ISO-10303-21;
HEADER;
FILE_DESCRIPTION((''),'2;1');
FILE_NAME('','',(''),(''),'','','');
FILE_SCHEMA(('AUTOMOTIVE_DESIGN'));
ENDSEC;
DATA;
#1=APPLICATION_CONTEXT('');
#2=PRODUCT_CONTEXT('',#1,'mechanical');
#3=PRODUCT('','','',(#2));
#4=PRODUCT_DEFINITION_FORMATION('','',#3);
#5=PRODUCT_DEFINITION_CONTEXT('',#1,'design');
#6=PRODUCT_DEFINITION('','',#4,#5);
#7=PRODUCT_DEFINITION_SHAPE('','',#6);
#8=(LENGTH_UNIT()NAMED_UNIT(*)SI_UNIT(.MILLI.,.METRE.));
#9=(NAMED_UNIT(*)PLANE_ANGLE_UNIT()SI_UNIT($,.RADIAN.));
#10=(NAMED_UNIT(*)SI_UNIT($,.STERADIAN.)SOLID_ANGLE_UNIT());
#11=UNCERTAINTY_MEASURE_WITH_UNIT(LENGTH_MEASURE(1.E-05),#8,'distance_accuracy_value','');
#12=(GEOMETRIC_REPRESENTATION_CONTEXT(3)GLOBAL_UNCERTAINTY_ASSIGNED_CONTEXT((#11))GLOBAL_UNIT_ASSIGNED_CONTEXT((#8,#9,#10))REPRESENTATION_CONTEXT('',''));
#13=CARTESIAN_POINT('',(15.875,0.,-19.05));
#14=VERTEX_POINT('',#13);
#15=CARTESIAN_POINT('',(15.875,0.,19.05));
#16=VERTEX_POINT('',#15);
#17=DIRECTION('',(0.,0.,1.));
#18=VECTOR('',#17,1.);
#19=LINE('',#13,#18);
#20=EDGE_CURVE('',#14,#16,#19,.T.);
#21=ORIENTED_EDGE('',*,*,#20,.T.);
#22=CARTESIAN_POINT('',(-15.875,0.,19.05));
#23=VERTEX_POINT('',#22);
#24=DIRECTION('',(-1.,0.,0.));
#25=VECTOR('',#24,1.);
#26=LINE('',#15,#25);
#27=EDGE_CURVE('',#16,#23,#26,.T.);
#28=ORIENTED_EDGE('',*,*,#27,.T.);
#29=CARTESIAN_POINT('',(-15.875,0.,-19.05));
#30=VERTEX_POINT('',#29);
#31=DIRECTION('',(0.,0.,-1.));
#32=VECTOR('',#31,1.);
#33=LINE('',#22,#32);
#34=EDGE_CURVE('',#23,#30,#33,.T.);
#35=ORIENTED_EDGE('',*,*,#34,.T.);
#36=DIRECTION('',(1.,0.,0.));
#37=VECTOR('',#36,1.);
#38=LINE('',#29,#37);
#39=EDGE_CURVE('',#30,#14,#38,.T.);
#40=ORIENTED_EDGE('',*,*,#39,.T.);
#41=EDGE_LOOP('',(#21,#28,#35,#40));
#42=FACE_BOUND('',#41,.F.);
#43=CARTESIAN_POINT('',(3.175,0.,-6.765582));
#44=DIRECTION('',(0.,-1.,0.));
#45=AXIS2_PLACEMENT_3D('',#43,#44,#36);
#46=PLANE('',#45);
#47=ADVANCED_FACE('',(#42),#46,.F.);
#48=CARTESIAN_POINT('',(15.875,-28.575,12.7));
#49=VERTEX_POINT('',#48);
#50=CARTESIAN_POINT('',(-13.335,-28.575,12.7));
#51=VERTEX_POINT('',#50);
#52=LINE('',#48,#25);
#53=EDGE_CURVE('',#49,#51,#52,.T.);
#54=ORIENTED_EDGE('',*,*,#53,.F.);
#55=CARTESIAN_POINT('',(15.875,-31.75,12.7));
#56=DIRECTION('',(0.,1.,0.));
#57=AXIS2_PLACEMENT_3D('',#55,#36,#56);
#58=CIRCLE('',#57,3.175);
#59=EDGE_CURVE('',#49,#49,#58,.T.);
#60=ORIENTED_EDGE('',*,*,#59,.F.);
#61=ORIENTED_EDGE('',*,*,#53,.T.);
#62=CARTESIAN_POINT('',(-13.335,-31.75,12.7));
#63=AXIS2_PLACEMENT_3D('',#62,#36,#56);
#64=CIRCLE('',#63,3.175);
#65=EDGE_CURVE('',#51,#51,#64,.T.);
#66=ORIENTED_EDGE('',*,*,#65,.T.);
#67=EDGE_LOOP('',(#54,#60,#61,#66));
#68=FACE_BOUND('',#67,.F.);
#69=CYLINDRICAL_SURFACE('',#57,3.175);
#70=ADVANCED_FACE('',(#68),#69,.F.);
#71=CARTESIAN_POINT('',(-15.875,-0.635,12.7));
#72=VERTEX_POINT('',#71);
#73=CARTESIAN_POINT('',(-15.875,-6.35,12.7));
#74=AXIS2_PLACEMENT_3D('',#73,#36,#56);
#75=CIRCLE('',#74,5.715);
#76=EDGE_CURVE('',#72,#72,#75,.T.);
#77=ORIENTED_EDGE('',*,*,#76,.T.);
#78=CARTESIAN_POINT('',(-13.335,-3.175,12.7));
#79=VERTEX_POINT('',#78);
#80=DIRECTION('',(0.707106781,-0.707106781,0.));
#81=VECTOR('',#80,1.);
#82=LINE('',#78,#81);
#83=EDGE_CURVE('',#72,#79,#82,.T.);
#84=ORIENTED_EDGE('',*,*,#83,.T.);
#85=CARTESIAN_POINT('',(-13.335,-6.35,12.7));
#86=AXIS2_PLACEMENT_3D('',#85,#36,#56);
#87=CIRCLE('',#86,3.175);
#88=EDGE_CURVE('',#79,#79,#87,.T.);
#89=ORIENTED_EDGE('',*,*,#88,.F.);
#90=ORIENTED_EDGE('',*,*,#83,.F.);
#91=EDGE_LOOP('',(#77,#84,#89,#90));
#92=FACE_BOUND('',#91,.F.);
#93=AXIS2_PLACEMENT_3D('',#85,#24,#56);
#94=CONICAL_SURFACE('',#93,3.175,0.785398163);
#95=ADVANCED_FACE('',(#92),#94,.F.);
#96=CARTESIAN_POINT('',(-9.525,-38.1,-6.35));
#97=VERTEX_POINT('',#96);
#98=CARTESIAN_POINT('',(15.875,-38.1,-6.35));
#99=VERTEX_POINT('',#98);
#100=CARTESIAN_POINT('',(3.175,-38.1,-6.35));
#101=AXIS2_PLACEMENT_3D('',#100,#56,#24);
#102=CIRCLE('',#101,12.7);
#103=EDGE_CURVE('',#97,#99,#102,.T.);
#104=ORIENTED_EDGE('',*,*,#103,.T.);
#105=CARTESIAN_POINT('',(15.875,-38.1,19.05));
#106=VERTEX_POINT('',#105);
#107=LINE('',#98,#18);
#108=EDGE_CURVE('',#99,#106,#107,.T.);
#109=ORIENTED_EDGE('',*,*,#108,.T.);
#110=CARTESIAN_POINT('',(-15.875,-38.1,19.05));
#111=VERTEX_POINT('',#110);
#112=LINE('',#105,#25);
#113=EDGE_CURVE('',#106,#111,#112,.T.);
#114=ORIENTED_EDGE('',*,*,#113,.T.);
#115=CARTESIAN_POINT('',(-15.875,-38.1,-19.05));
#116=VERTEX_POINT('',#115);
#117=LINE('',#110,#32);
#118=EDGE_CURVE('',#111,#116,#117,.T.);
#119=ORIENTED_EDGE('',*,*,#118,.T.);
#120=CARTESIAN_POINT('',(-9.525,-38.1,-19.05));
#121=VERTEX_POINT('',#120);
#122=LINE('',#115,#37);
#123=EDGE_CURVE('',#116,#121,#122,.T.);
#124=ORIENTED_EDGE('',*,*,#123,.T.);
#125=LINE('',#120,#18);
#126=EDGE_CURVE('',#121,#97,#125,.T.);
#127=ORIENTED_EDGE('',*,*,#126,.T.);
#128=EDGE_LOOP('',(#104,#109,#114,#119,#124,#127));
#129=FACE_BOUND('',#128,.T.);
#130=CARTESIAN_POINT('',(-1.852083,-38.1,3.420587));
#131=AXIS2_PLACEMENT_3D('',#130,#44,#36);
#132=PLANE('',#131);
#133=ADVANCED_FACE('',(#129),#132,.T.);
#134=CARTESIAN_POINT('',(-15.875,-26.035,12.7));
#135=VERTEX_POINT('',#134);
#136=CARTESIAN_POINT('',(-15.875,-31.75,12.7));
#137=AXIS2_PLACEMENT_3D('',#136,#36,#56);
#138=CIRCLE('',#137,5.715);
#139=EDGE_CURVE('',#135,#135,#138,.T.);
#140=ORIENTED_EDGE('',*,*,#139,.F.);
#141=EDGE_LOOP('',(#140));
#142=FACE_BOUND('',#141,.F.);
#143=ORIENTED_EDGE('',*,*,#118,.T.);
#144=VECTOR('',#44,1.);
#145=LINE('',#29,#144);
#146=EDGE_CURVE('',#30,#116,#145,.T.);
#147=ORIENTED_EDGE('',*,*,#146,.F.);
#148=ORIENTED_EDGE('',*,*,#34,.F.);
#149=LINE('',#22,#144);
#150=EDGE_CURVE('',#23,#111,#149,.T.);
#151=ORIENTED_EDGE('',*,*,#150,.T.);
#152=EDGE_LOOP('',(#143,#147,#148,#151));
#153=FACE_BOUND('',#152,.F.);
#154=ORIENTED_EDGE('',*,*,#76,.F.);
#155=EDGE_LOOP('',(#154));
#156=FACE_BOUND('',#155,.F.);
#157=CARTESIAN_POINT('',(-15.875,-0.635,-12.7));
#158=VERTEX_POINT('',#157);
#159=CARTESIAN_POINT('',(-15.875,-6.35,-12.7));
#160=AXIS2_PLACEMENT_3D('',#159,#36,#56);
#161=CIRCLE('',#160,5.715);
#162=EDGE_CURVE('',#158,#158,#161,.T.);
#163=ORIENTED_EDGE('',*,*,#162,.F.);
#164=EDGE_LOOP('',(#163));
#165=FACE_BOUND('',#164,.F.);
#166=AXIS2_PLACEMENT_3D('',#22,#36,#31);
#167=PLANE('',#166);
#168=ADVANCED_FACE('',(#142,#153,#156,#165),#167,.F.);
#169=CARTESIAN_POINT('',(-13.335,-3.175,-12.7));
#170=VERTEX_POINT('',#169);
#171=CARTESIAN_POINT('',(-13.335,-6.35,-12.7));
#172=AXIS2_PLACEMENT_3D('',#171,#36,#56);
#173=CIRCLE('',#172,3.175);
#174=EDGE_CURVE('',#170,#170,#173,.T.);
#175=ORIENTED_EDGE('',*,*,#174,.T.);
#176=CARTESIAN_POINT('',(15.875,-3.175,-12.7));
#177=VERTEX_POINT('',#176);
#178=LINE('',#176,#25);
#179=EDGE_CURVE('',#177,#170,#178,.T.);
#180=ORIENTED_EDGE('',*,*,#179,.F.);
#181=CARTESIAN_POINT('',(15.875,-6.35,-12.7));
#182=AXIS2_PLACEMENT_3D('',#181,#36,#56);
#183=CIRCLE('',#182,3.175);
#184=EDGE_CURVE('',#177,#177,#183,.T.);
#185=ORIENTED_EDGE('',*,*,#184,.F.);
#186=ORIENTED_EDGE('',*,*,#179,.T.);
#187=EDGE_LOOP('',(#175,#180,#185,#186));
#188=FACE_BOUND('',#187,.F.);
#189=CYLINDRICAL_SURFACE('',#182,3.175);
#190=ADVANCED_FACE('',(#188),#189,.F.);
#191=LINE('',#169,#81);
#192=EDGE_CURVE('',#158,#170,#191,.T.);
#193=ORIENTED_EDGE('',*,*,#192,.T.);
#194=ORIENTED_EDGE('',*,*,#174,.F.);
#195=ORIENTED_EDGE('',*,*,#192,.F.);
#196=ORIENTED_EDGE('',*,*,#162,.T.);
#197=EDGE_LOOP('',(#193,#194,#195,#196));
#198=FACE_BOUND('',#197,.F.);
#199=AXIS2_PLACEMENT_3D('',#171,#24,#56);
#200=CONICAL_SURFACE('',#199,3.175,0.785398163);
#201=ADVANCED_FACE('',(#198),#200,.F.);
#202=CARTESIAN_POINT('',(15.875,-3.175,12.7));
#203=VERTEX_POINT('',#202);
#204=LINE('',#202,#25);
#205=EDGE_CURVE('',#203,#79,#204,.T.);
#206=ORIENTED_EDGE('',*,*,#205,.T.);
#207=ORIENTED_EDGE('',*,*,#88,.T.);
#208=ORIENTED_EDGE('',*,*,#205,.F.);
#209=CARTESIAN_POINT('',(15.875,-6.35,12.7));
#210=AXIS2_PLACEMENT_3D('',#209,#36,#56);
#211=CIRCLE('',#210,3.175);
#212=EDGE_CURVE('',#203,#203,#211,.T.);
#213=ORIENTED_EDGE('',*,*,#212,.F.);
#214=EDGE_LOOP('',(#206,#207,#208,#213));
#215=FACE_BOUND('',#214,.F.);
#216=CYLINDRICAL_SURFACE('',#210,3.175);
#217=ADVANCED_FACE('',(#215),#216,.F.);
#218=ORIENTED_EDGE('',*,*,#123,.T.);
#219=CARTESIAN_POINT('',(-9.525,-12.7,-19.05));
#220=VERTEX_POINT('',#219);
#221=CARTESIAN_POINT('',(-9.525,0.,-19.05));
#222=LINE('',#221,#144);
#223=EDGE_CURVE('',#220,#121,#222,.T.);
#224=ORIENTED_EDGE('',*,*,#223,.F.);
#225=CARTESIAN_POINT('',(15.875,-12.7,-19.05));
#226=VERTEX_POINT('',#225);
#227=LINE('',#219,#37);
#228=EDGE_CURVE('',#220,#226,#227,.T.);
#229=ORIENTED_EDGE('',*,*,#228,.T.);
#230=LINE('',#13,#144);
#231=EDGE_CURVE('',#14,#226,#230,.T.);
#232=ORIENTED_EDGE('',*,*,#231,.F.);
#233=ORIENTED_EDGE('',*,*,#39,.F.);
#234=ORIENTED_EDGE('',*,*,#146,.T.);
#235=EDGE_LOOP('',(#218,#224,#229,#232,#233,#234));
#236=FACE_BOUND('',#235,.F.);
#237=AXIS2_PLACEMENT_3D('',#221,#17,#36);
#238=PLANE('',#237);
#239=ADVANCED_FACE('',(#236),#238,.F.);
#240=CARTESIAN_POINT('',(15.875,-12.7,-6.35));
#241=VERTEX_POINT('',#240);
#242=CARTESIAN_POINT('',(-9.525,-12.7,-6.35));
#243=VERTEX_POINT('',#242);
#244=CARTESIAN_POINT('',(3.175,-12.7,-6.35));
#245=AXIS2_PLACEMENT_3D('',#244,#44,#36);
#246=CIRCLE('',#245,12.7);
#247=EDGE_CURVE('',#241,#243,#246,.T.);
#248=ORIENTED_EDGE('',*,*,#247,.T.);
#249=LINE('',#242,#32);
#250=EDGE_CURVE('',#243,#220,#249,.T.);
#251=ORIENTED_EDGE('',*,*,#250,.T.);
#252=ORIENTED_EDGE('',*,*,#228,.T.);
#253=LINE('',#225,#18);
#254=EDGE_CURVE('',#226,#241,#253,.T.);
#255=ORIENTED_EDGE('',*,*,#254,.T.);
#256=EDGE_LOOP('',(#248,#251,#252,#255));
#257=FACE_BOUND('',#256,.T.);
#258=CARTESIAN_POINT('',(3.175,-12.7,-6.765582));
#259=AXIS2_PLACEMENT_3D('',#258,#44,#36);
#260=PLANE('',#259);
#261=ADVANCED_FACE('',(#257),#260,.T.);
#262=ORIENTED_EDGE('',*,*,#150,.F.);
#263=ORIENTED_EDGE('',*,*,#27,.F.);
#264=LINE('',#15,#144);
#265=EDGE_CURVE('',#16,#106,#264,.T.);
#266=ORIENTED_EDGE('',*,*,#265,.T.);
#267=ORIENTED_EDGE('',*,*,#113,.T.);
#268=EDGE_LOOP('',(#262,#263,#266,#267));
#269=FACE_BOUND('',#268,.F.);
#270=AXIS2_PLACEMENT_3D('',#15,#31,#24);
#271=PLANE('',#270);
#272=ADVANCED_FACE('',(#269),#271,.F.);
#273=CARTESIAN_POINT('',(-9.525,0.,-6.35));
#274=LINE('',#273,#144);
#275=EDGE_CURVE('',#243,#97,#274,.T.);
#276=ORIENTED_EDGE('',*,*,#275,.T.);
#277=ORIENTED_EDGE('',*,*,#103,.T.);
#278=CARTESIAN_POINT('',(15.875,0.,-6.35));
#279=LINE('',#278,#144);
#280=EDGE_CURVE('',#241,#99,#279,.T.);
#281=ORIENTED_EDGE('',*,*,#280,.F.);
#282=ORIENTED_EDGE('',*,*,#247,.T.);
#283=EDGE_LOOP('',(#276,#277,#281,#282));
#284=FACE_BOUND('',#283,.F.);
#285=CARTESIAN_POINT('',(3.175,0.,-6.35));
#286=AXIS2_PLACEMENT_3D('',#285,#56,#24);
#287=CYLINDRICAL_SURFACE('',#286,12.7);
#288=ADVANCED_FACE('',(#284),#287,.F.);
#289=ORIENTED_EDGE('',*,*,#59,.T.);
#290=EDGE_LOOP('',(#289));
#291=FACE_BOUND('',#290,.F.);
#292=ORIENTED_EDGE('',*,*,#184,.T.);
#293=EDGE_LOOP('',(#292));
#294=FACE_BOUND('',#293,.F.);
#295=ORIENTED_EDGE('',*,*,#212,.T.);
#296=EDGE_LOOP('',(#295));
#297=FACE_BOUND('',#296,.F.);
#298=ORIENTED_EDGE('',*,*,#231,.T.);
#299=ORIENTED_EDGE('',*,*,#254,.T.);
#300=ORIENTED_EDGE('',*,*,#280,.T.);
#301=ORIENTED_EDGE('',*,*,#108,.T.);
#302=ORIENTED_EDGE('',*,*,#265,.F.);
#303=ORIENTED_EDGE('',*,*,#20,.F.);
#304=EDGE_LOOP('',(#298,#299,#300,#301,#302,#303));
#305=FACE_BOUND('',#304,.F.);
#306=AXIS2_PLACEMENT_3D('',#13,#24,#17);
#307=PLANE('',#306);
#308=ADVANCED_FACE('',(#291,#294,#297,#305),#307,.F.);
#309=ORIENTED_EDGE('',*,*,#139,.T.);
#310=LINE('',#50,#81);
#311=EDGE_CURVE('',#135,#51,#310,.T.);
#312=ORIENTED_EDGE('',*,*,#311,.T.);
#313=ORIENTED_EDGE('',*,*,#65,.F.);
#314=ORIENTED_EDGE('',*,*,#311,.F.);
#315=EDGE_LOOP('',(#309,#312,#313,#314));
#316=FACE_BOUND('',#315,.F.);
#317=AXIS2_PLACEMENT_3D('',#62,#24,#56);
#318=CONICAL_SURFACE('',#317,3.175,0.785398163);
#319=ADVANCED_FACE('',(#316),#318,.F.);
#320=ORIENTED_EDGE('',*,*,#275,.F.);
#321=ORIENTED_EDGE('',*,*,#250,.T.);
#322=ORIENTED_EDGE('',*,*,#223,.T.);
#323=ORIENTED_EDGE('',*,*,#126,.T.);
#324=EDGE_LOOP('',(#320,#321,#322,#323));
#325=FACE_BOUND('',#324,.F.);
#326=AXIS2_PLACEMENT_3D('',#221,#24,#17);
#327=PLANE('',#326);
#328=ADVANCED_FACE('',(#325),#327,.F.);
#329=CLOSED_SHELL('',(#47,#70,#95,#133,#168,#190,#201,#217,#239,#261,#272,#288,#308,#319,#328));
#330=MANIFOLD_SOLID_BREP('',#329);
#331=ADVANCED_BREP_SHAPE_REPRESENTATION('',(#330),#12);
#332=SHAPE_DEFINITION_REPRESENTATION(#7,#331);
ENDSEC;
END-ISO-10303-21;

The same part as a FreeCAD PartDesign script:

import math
import FreeCAD as App
import Part
import Sketcher

V = App.Vector
Q = App.Units.Quantity


def edges_at(feature, points):
    """Names of the edges that pass closest to the given points."""
    edges = feature.Shape.Edges
    near = lambda p: min(range(len(edges)), key=lambda i: edges[i].distToShape(Part.Vertex(*p))[0])
    return sorted({f"Edge{near(p) + 1}" for p in points})

doc = App.newDocument("Part")
params = doc.addObject("Spreadsheet::Sheet", "Params")
for row, (alias, value) in enumerate([
    ("sketch1_radius", "0.5 in"),
    ("sketch1_height", "1 in"),
    ("sketch1_height2", "1.5 in"),
    ("sketch1_width", "1.25 in"),
    ("pad1_length", "1.5 in"),
    ("sketch2_radius", "0.5 in"),
    ("sketch2_height", "0.5 in"),
    ("pad2_length", "0.5 in"),
    ("sketch3_diameter", "0.25 in"),
    ("chamfer_size", "0.1 in"),
], start=1):
    params.set(f"A{row}", alias)
    params.set(f"B{row}", "=" + value)
    params.setAlias(f"B{row}", alias)

body = doc.addObject("PartDesign::Body", "Body")

# Sketch on XZ plane
sketch1 = body.newObject("Sketcher::SketchObject", "Sketch")
sketch1.AttachmentSupport = (doc.getObject("XZ_Plane"), [""])
sketch1.MapMode = "FlatFace"
sketch1.addGeometry([
    Part.LineSegment(V(15.875, -6.35, 0), V(15.875, 19.05, 0)),  # 0
    Part.LineSegment(V(15.875, 19.05, 0), V(-15.875, 19.05, 0)),  # 1
    Part.LineSegment(V(-15.875, 19.05, 0), V(-15.875, -19.05, 0)),  # 2
    Part.LineSegment(V(-15.875, -19.05, 0), V(-9.525, -19.05, 0)),  # 3
    Part.LineSegment(V(-9.525, -19.05, 0), V(-9.525, -6.35, 0)),  # 4
    Part.ArcOfCircle(Part.Circle(V(3.175, -6.35, 0), V(0, 0, 1), 12.7), math.radians(0), math.radians(180)),  # 5
], False)
sketch1.addConstraint([
    Sketcher.Constraint("Coincident", 0, 2, 1, 1),
    Sketcher.Constraint("Coincident", 1, 2, 2, 1),
    Sketcher.Constraint("Coincident", 2, 2, 3, 1),
    Sketcher.Constraint("Coincident", 3, 2, 4, 1),
    Sketcher.Constraint("Tangent", 4, 2, 5, 2),
    Sketcher.Constraint("Tangent", 5, 1, 0, 1),
    Sketcher.Constraint("Vertical", 0),
    Sketcher.Constraint("Horizontal", 1),
    Sketcher.Constraint("Vertical", 2),
    Sketcher.Constraint("Horizontal", 3),
    Sketcher.Constraint("Vertical", 4),
    Sketcher.Constraint("Symmetric", 0, 2, 2, 2, -1, 1),
    Sketcher.Constraint("Radius", 5, Q("0.5 in")),
    Sketcher.Constraint("DistanceY", 0, 1, 0, 2, Q("1 in")),
    Sketcher.Constraint("DistanceY", 2, 2, 2, 1, Q("1.5 in")),
    Sketcher.Constraint("DistanceX", 1, 2, 1, 1, Q("1.25 in")),
])
sketch1.setExpression("Constraints[12]", "Params.sketch1_radius")
sketch1.setExpression("Constraints[13]", "Params.sketch1_height")
sketch1.setExpression("Constraints[14]", "Params.sketch1_height2")
sketch1.setExpression("Constraints[15]", "Params.sketch1_width")
pad1 = body.newObject("PartDesign::Pad", "Pad")
pad1.Profile = sketch1
pad1.setExpression("Length", "Params.pad1_length")

# Sketch on XZ plane
sketch2 = body.newObject("Sketcher::SketchObject", "Sketch001")
sketch2.AttachmentSupport = (doc.getObject("XZ_Plane"), [""])
sketch2.MapMode = "FlatFace"
sketch2.addGeometry([
    Part.ArcOfCircle(Part.Circle(V(3.175, -6.35, 0), V(0, 0, 1), 12.7), math.radians(0), math.radians(180)),
    Part.LineSegment(V(-9.525, -6.35, 0), V(-9.525, -19.05, 0)),
    Part.LineSegment(V(-9.525, -19.05, 0), V(15.875, -19.05, 0)),
    Part.LineSegment(V(15.875, -19.05, 0), V(15.875, -6.35, 0)),
], False)
sketch2.addConstraint([
    Sketcher.Constraint("Tangent", 0, 2, 1, 1),
    Sketcher.Constraint("Coincident", 1, 2, 2, 1),
    Sketcher.Constraint("Coincident", 2, 2, 3, 1),
    Sketcher.Constraint("Tangent", 3, 2, 0, 1),
    Sketcher.Constraint("Vertical", 1),
    Sketcher.Constraint("Horizontal", 2),
    Sketcher.Constraint("Vertical", 3),
    Sketcher.Constraint("Radius", 0, Q("0.5 in")),
    Sketcher.Constraint("DistanceY", 1, 2, 1, 1, Q("0.5 in")),
    Sketcher.Constraint("DistanceY", 0, 3, -1, 1, Q("0.25 in")),
    Sketcher.Constraint("DistanceX", -1, 1, 0, 3, Q("0.125 in")),
])
sketch2.setExpression("Constraints[7]", "Params.sketch2_radius")
sketch2.setExpression("Constraints[8]", "Params.sketch2_height")
pad2 = body.newObject("PartDesign::Pad", "Pad001")
pad2.Profile = sketch2
pad2.setExpression("Length", "Params.pad2_length")

# Sketch on YZ plane
sketch3 = body.newObject("Sketcher::SketchObject", "Sketch002")
sketch3.AttachmentSupport = (doc.getObject("YZ_Plane"), [""])
sketch3.MapMode = "FlatFace"
sketch3.AttachmentOffset = App.Placement(V(0, 0, 0.625 * 25.4), App.Rotation())
sketch3.addGeometry([
    Part.Circle(V(-31.75, 12.7, 0), V(0, 0, 1), 3.175),
    Part.Circle(V(-6.35, 12.7, 0), V(0, 0, 1), 3.175),
    Part.Circle(V(-6.35, -12.7, 0), V(0, 0, 1), 3.175),
], False)
sketch3.addConstraint([
    Sketcher.Constraint("Equal", 0, 1),
    Sketcher.Constraint("Equal", 1, 2),
    Sketcher.Constraint("Symmetric", 1, 3, 2, 3, -1),
    Sketcher.Constraint("Horizontal", 0, 3, 1, 3),
    Sketcher.Constraint("Diameter", 0, Q("0.25 in")),
    Sketcher.Constraint("DistanceX", 0, 3, 1, 3, Q("1 in")),
    Sketcher.Constraint("DistanceY", 2, 3, 1, 3, Q("1 in")),
    Sketcher.Constraint("DistanceX", 0, 3, -1, 1, Q("1.25 in")),
])
sketch3.setExpression("Constraints[4]", "Params.sketch3_diameter")
pocket1 = body.newObject("PartDesign::Pocket", "Pocket")
pocket1.Profile = sketch3
pocket1.Type = "ThroughAll"
doc.recompute()

chamfer = body.newObject("PartDesign::Chamfer", "Chamfer")
chamfer.Base = (pocket1, edges_at(pocket1, [(-15.875, -9.525, -12.7), (-15.875, -9.525, 12.7), (-15.875, -34.925, 12.7)]))
chamfer.setExpression("Size", "Params.chamfer_size")

doc.recompute()
